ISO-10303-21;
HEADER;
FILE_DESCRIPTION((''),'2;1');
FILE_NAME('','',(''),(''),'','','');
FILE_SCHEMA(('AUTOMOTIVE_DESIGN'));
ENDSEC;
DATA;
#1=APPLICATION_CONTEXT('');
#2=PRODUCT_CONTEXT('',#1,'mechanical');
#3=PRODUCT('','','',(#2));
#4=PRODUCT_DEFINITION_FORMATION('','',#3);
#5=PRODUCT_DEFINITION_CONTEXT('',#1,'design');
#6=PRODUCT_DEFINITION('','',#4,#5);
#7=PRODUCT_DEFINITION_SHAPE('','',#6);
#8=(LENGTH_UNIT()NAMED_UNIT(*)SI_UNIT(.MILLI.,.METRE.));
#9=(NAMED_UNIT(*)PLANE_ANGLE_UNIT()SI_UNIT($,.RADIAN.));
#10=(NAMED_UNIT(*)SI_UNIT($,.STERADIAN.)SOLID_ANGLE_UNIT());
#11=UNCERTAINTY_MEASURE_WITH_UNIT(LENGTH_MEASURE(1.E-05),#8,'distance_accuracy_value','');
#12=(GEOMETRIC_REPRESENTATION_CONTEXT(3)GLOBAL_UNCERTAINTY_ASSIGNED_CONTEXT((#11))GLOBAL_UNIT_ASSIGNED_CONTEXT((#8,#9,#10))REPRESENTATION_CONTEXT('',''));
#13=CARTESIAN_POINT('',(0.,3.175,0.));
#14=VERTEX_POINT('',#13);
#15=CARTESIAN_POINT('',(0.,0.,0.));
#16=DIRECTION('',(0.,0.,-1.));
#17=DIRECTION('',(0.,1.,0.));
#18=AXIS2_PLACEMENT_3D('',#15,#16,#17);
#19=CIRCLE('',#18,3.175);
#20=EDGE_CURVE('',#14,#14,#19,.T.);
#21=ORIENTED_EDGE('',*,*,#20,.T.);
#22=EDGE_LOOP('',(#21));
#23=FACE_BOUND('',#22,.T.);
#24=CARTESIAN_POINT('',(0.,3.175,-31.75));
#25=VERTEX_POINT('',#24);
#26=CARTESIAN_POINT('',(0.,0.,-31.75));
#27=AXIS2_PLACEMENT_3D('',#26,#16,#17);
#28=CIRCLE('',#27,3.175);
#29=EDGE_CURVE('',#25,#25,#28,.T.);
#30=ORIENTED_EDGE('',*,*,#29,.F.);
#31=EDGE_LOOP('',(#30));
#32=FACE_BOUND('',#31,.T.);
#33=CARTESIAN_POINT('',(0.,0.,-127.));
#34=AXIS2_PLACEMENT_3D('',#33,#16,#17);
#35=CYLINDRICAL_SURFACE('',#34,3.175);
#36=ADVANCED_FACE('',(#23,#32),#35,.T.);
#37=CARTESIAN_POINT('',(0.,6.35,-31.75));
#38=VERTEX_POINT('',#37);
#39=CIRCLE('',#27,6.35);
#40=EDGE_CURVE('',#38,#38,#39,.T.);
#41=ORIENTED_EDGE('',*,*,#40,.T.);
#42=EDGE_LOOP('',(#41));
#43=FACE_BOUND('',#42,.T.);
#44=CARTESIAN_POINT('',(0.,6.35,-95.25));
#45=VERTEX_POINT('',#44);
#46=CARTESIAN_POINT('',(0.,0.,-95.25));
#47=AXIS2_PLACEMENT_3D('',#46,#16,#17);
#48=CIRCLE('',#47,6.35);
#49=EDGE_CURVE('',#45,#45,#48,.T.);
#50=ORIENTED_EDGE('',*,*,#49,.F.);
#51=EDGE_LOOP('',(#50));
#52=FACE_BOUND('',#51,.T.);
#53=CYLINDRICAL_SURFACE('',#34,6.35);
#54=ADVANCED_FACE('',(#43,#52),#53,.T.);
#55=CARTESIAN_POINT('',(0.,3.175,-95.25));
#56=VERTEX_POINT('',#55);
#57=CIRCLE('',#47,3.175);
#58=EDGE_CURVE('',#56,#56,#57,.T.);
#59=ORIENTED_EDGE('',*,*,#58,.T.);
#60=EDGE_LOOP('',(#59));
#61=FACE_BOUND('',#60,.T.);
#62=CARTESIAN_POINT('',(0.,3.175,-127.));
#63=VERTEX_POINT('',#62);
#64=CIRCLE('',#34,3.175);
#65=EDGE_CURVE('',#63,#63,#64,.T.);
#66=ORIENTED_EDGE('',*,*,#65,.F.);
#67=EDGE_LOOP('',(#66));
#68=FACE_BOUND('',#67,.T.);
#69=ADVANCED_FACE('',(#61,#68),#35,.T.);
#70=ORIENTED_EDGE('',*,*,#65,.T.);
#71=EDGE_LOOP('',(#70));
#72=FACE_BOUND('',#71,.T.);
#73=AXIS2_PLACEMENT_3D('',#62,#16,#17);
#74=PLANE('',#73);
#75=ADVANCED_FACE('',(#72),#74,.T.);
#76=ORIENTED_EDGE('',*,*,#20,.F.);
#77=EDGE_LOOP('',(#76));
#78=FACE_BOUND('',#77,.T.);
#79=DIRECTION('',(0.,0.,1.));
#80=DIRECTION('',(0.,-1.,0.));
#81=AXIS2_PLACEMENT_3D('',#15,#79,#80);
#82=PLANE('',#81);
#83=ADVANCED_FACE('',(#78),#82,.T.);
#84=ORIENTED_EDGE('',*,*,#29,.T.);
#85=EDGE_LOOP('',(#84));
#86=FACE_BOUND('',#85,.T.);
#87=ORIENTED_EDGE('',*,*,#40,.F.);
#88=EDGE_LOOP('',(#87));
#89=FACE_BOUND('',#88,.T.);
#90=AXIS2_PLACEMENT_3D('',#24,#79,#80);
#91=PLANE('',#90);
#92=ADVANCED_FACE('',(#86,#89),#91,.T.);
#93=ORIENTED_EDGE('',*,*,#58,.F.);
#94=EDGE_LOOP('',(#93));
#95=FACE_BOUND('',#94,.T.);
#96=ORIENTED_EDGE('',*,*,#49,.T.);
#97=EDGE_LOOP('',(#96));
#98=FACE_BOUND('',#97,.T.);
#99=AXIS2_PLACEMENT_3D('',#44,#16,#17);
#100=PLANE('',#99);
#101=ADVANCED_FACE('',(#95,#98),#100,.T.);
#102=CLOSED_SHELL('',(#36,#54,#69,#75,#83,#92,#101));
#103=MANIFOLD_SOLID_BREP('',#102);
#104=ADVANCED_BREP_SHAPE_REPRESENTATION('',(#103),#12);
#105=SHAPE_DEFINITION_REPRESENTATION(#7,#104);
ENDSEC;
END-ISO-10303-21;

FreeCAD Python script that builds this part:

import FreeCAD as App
import Part
import Sketcher
Q = App.Units.Quantity


def add_polygon(sketch, points):
    """Adds a closed chain of lines whose ends are joined by coincident constraints."""
    first, n = sketch.GeometryCount, len(points)
    for a, b in zip(points, points[1:] + points[:1]):
        sketch.addGeometry(Part.LineSegment(App.Vector(*a, 0), App.Vector(*b, 0)), False)
    for i in range(n):
        sketch.addConstraint(Sketcher.Constraint("Coincident", first + i, 2, first + (i + 1) % n, 1))

doc = App.newDocument("Part")
params = doc.addObject("Spreadsheet::Sheet", "Params")
for row, (alias, value) in enumerate([
    ("sketch1_height", "5 in"),
    ("sketch1_height2", "2.5 in"),
    ("sketch1_width", "0.125 in"),
    ("revolution_angle", "360 deg"),
], start=1):
    params.set(f"A{row}", alias)
    params.set(f"B{row}", "=" + value)
    params.setAlias(f"B{row}", alias)

body = doc.addObject("PartDesign::Body", "Body")

# Sketch on YZ plane
sketch1 = body.newObject("Sketcher::SketchObject", "Sketch")
sketch1.AttachmentSupport = (doc.getObject("YZ_Plane"), [""])
sketch1.MapMode = "FlatFace"
add_polygon(sketch1, [(3.2, 0), (0, 0), (0, -127), (3.2, -127), (3.2, -95.2), (6.3, -95.2), (6.3, -31.8), (3.2, -31.8)])  # lines 0-7
sketch1.addConstraint(Sketcher.Constraint("Horizontal", 0))
sketch1.addConstraint(Sketcher.Constraint("Vertical", 1))
sketch1.addConstraint(Sketcher.Constraint("Horizontal", 2))
sketch1.addConstraint(Sketcher.Constraint("Vertical", 3))
sketch1.addConstraint(Sketcher.Constraint("Horizontal", 4))
sketch1.addConstraint(Sketcher.Constraint("Vertical", 5))
sketch1.addConstraint(Sketcher.Constraint("Horizontal", 6))
sketch1.addConstraint(Sketcher.Constraint("Vertical", 7))
sketch1.addConstraint(Sketcher.Constraint("Coincident", 0, 2, -1, 1))
sketch1.addConstraint(Sketcher.Constraint("Vertical", 3, 2, 6, 2))
sketch1.addConstraint(Sketcher.Constraint("Equal", 2, 4))
sketch1.addConstraint(Sketcher.Constraint("Equal", 3, 7))
sketch1.addConstraint(Sketcher.Constraint("DistanceY", 1, 2, 1, 1, Q("5 in")))
sketch1.addConstraint(Sketcher.Constraint("DistanceY", 5, 1, 5, 2, Q("2.5 in")))
sketch1.addConstraint(Sketcher.Constraint("DistanceX", 0, 2, 0, 1, Q("0.125 in")))
sketch1.setExpression("Constraints[20]", "Params.sketch1_height")
sketch1.setExpression("Constraints[21]", "Params.sketch1_height2")
sketch1.setExpression("Constraints[22]", "Params.sketch1_width")
revolution = body.newObject("PartDesign::Revolution", "Revolution")
revolution.Profile = sketch1
revolution.ReferenceAxis = (sketch1, ["V_Axis"])
revolution.setExpression("Angle", "Params.revolution_angle")

doc.recompute()
